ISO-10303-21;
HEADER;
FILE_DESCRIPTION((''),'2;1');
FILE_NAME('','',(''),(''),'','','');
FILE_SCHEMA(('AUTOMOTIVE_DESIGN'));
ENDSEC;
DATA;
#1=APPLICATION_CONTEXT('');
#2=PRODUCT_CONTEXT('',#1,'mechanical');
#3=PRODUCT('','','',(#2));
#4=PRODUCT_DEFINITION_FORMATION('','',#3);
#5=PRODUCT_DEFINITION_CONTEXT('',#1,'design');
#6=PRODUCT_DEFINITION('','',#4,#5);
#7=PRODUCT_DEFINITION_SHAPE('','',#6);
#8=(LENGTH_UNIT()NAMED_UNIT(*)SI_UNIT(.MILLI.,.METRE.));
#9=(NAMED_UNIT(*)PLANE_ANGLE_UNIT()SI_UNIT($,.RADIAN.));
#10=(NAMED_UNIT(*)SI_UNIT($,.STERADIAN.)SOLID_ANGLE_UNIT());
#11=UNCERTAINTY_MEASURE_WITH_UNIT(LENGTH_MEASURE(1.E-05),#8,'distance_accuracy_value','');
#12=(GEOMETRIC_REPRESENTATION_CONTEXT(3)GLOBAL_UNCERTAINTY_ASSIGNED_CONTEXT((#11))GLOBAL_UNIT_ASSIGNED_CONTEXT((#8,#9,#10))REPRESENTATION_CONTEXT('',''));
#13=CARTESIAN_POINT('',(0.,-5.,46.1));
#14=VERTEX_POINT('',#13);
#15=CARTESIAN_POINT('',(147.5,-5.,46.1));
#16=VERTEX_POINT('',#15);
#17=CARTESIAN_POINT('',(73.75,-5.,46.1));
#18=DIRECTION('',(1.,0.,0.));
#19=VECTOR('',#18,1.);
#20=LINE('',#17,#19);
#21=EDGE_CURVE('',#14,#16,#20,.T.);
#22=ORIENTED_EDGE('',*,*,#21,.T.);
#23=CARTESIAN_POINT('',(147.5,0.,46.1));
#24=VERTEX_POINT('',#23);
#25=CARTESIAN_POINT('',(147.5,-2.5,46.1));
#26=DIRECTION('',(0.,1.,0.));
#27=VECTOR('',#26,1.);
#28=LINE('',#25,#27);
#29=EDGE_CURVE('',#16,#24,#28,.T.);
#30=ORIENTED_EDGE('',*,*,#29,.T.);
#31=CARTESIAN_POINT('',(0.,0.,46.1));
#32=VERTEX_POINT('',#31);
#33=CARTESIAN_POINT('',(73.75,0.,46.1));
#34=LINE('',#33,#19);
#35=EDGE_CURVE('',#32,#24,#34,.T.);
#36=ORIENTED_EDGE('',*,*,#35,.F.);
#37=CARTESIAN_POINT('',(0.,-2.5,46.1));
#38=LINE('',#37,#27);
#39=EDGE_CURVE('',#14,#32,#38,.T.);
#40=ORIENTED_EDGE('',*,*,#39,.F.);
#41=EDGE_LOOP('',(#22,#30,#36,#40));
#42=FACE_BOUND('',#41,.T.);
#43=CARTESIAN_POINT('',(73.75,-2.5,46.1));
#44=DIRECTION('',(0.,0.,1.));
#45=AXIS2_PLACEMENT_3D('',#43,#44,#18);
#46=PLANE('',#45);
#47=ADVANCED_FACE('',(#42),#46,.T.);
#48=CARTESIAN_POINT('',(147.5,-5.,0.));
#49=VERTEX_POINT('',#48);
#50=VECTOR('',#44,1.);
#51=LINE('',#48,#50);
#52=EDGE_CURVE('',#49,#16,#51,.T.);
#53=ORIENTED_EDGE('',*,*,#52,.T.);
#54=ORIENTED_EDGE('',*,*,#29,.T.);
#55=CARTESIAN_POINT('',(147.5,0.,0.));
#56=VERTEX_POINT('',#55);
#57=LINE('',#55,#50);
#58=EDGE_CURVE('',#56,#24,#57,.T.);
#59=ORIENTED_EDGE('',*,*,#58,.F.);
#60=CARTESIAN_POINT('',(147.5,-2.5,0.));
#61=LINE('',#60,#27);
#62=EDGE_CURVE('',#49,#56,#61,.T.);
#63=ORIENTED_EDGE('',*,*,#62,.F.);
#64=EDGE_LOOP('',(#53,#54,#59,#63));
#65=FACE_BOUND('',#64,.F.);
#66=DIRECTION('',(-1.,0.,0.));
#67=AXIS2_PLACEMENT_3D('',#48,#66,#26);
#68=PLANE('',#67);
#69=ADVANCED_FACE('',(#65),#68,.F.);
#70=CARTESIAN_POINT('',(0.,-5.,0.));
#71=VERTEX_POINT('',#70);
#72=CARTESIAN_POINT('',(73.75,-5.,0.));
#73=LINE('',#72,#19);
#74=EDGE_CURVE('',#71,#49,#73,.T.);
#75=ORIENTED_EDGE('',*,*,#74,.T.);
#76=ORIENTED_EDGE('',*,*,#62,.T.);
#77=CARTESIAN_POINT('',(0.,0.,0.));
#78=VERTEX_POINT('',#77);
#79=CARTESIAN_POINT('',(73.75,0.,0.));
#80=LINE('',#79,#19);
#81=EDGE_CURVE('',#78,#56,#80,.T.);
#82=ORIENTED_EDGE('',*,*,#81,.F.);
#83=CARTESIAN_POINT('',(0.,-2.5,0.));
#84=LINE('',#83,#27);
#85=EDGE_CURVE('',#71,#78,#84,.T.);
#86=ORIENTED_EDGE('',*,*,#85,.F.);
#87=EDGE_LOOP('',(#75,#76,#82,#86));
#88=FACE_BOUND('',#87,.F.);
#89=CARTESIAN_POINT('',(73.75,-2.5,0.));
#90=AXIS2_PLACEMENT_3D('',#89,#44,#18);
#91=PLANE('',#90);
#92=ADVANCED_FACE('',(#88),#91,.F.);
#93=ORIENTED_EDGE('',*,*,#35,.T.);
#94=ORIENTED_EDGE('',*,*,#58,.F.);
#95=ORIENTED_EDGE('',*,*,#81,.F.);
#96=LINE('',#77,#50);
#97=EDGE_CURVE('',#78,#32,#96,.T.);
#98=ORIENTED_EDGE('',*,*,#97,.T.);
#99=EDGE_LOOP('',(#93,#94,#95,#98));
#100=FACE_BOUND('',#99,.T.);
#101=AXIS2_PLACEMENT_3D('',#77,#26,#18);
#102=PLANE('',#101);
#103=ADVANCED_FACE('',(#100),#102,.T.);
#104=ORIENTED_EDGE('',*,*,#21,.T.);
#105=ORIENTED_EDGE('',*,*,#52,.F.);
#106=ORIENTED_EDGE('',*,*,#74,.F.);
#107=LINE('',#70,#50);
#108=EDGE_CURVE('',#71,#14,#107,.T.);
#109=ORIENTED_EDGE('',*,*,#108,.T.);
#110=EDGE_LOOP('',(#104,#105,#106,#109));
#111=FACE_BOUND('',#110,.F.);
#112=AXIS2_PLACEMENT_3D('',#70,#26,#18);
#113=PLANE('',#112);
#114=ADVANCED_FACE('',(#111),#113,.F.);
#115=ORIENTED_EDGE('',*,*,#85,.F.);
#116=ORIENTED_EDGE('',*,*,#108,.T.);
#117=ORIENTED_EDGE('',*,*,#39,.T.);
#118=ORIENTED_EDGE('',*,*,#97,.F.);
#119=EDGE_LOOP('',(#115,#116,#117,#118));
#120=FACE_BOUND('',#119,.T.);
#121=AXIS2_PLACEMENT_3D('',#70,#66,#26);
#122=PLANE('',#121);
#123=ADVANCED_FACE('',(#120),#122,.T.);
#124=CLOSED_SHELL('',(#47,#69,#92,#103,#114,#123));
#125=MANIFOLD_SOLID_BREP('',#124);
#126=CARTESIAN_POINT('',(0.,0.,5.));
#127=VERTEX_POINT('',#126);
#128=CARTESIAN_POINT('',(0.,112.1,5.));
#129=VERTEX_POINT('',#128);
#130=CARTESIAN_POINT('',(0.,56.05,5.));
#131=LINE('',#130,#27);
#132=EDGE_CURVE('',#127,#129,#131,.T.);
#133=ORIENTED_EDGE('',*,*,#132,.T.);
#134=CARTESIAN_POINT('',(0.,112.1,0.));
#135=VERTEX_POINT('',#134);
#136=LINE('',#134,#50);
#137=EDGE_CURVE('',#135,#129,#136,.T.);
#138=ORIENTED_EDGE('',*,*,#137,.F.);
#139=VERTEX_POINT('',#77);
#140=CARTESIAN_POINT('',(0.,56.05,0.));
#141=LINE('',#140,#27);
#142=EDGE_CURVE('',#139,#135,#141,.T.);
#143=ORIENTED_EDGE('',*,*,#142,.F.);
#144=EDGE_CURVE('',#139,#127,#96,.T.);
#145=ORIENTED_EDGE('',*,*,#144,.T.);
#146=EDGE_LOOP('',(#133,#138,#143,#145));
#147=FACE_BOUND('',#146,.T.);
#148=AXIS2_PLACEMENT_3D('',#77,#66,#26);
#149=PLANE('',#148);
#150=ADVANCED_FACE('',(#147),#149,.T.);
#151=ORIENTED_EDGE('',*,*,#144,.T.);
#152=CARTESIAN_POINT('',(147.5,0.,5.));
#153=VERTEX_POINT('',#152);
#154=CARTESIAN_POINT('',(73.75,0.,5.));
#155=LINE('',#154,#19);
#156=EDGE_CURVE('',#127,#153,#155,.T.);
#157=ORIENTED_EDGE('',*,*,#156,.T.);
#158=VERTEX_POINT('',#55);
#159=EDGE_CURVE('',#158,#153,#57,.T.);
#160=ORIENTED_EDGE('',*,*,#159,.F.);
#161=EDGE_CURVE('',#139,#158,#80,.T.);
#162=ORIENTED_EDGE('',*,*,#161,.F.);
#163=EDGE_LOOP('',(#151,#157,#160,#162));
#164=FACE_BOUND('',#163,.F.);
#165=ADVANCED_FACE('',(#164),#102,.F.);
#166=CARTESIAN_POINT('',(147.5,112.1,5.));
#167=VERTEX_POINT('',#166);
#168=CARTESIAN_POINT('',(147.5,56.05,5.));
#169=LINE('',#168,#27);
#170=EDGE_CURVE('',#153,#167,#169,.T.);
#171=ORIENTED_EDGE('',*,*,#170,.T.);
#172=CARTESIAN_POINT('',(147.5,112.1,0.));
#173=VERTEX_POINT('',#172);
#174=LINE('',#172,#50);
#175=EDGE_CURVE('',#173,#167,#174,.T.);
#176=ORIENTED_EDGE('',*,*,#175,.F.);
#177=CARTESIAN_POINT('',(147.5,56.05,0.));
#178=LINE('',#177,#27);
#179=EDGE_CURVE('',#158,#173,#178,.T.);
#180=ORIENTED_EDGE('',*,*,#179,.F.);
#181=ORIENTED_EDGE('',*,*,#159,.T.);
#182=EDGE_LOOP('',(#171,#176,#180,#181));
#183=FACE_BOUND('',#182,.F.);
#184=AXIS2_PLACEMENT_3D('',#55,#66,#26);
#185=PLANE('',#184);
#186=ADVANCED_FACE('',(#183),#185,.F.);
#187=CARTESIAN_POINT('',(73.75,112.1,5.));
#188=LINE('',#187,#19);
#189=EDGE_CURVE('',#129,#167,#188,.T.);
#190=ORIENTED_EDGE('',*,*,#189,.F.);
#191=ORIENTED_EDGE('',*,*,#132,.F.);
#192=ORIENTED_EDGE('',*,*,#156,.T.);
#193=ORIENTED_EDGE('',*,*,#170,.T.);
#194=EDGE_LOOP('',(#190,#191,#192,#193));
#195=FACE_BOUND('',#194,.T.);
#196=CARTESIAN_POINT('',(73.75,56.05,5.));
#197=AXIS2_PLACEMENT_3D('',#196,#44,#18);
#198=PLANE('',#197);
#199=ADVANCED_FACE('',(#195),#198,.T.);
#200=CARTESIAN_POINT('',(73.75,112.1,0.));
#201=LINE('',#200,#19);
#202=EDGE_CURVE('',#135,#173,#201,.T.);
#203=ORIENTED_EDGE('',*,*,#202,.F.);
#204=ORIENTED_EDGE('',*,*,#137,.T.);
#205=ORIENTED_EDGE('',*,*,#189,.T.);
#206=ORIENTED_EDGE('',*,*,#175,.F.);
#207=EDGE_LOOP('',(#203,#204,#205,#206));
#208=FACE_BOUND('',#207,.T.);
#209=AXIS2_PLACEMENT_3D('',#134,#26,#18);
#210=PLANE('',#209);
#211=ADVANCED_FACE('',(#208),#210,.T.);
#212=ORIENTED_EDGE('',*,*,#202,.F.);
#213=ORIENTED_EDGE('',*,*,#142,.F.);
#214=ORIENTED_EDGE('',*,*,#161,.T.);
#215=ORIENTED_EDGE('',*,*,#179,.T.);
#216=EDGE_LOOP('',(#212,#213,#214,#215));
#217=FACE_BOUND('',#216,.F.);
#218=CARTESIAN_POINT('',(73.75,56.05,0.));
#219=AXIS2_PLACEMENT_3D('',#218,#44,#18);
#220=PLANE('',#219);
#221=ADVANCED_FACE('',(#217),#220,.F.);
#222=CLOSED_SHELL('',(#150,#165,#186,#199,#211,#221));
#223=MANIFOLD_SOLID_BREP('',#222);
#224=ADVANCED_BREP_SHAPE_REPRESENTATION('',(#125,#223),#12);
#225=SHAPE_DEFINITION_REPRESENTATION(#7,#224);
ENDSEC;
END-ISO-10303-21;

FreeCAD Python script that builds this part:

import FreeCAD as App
import Part
import Sketcher
from FreeCAD import Vector


def add_polygon(sketch, points):
    """Adds a closed chain of lines whose ends are joined by coincident constraints."""
    first, n = sketch.GeometryCount, len(points)
    for a, b in zip(points, points[1:] + points[:1]):
        sketch.addGeometry(Part.LineSegment(App.Vector(*a, 0), App.Vector(*b, 0)), False)
    for i in range(n):
        sketch.addConstraint(Sketcher.Constraint("Coincident", first + i, 2, first + (i + 1) % n, 1))

doc = App.newDocument("Part")
body = doc.addObject("PartDesign::Body", "Body")

sketch1 = doc.addObject("Sketcher::SketchObject", "Sketch")
body.addObject(sketch1)
sketch1.AttachmentSupport = (doc.XY_Plane, [""])
sketch1.MapMode = "FlatFace"
add_polygon(sketch1, [(0, 112), (0, 0), (148, 0), (148, 112)])
sketch1.addConstraint([
    Sketcher.Constraint("Vertical", 0),
    Sketcher.Constraint("Horizontal", 1),
    Sketcher.Constraint("Vertical", 2),
    Sketcher.Constraint("Horizontal", 3),
    Sketcher.Constraint("Coincident", 0, 2, -1, 1),
    Sketcher.Constraint("DistanceX", 1, 1, 1, 2, 147.5),
    Sketcher.Constraint("DistanceY", 0, 2, 0, 1, 112.1),
])
pad1 = doc.addObject("PartDesign::Pad", "Pad")
body.addObject(pad1)
pad1.Profile = sketch1
pad1.Length = 5
body2 = doc.addObject("PartDesign::Body", "Body001")

sketch2 = doc.addObject("Sketcher::SketchObject", "Sketch001")
body2.addObject(sketch2)
sketch2.AttachmentSupport = (doc.getObject("XY_Plane001"), [""])
sketch2.MapMode = "FlatFace"
add_polygon(sketch2, [(0, 0), (0, -5), (148, -5), (148, 0)])
sketch2.addConstraint([
    Sketcher.Constraint("Vertical", 0),
    Sketcher.Constraint("Horizontal", 1),
    Sketcher.Constraint("Vertical", 2),
    Sketcher.Constraint("Horizontal", 3),
    Sketcher.Constraint("Coincident", 3, 2, -1, 1),
    Sketcher.Constraint("DistanceY", 0, 2, 0, 1, 5.0),
    Sketcher.Constraint("DistanceX", 1, 1, 1, 2, 147.5),
])
pad2 = doc.addObject("PartDesign::Pad", "Pad001")
body2.addObject(pad2)
pad2.Profile = sketch2
pad2.Length = 46.1

doc.recompute()
